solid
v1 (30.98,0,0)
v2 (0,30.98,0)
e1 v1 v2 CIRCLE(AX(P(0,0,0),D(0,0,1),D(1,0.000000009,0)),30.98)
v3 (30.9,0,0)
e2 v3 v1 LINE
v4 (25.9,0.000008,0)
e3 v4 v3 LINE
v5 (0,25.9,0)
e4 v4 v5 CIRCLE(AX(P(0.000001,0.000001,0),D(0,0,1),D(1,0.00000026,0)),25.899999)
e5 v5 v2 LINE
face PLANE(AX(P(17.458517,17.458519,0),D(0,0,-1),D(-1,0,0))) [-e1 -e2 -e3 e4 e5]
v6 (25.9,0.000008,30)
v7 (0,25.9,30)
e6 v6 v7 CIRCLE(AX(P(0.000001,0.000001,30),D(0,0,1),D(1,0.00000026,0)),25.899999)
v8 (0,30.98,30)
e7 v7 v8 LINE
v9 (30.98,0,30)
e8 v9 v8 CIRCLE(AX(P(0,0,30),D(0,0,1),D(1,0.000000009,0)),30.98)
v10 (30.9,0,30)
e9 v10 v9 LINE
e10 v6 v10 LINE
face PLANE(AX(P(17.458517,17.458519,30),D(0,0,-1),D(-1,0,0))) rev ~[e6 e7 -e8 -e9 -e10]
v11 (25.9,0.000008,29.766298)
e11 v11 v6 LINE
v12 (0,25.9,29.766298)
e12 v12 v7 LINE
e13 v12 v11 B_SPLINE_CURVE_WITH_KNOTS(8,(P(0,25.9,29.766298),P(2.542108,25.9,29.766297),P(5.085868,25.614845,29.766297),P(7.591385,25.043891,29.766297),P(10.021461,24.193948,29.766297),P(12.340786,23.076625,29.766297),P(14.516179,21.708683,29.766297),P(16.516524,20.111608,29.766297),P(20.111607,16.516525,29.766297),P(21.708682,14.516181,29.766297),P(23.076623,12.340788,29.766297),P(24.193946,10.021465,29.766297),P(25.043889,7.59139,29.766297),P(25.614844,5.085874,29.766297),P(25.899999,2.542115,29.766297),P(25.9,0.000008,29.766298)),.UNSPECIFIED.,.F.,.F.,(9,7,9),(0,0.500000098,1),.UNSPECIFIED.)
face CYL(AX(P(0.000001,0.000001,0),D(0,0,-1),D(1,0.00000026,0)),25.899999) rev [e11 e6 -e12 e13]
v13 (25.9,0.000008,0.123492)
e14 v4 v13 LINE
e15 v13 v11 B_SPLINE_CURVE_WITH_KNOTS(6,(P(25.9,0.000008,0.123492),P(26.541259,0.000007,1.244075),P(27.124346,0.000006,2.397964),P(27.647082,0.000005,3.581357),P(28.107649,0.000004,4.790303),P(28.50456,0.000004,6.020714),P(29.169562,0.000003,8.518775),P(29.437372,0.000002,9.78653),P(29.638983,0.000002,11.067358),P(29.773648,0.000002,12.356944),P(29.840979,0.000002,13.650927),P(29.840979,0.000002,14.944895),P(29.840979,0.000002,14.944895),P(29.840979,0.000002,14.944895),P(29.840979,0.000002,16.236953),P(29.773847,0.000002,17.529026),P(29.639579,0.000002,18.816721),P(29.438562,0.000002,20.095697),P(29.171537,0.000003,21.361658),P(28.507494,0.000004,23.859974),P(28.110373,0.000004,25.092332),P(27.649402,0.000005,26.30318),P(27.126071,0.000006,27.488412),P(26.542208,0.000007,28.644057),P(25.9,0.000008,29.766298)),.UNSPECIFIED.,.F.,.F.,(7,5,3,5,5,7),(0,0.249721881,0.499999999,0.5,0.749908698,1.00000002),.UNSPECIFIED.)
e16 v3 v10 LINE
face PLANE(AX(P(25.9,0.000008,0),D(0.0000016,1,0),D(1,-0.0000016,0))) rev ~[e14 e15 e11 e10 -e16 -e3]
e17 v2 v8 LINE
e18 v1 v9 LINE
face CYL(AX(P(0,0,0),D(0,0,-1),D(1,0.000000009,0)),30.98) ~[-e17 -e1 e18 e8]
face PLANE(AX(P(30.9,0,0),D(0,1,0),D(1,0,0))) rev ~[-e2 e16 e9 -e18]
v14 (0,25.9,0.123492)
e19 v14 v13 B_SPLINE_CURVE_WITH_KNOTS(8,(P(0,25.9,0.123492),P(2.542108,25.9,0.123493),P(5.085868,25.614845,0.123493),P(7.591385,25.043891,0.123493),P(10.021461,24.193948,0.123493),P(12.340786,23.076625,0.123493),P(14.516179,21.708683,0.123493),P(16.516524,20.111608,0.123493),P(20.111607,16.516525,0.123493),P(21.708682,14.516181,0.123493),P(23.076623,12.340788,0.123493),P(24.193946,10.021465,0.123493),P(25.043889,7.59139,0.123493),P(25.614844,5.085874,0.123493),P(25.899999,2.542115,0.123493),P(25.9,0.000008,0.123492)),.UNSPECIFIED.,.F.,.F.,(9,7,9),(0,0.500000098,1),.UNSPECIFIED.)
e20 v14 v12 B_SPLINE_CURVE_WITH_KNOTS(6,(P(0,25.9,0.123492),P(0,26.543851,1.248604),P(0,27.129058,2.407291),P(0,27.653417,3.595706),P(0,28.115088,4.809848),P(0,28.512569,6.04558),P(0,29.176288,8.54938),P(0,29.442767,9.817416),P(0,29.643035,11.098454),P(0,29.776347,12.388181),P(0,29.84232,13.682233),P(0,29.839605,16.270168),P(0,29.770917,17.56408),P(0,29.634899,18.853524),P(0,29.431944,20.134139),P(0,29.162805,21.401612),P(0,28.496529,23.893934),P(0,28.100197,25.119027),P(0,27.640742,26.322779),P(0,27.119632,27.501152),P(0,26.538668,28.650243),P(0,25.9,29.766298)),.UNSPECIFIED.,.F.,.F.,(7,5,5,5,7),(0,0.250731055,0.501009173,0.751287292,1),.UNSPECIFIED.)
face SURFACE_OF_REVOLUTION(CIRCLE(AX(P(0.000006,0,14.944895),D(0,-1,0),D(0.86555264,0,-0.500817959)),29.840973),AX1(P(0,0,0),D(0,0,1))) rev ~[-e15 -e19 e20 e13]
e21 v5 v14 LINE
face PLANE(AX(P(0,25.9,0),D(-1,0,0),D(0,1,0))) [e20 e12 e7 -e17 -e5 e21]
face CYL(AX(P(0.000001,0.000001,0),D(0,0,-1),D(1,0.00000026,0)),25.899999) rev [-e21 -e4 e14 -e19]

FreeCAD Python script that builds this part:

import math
import FreeCAD as App
import Part
import Sketcher

V = App.Vector

doc = App.newDocument("Part")
body = doc.addObject("PartDesign::Body", "Body")

sketch1 = body.newObject("Sketcher::SketchObject", "Sketch")
sketch1.AttachmentSupport = (doc.getObject("XY_Plane"), [""])
sketch1.MapMode = "FlatFace"
sketch1.addGeometry([
    Part.ArcOfCircle(Part.Circle(V(0, 0, 0), V(0, 0, 1), 25.9), math.radians(0), math.radians(90)),
    Part.LineSegment(V(25.9, 0, 0), V(30.9, 0, 0)),
    Part.LineSegment(V(30.9, 0, 0), V(30.98, 0, 0)),
    Part.ArcOfCircle(Part.Circle(V(0, 0, 0), V(0, 0, 1), 30.98), math.radians(0), math.radians(90)),
    Part.LineSegment(V(0, 30.98, 0), V(0, 25.9, 0)),
], False)
sketch1.addConstraint([
    Sketcher.Constraint("Coincident", 0, 1, 1, 1),
    Sketcher.Constraint("Coincident", 1, 2, 2, 1),
    Sketcher.Constraint("Coincident", 2, 2, 3, 1),
    Sketcher.Constraint("Coincident", 3, 2, 4, 1),
    Sketcher.Constraint("Coincident", 4, 2, 0, 2),
    Sketcher.Constraint("Horizontal", 2),
    Sketcher.Constraint("Vertical", 4),
    Sketcher.Constraint("Coincident", 0, 3, -1, 1),
    Sketcher.Constraint("Coincident", 3, 3, -1, 1),
    Sketcher.Constraint("PointOnObject", 1, 2, -1),
    Sketcher.Constraint("PointOnObject", 3, 2, -2),
    Sketcher.Constraint("Radius", 0, 25.899999),
    Sketcher.Constraint("Radius", 3, 30.98),
    Sketcher.Constraint("Distance", 1, 5.0),
    Sketcher.Constraint("DistanceY", 0, 1, 3, 2, 30.979992),
])
pad1 = body.newObject("PartDesign::Pad", "Pad")
pad1.Profile = sketch1
pad1.Length = 30

sketch2 = body.newObject("Sketcher::SketchObject", "Sketch001")
sketch2.AttachmentSupport = (doc.getObject("XY_Plane"), [""])
sketch2.MapMode = "FlatFace"
sketch2.addGeometry([
    Part.LineSegment(V(0, 10, 0), V(0, 0, 0)),
    Part.LineSegment(V(0, 0, 0), V(10, 0, 0)),
    Part.LineSegment(V(10, 0, 0), V(10, 10, 0)),
    Part.LineSegment(V(10, 10, 0), V(0, 10, 0)),
], False)
sketch2.addConstraint([
    Sketcher.Constraint("Coincident", 0, 2, 1, 1),
    Sketcher.Constraint("Coincident", 1, 2, 2, 1),
    Sketcher.Constraint("Coincident", 2, 2, 3, 1),
    Sketcher.Constraint("Coincident", 3, 2, 0, 1),
    Sketcher.Constraint("Vertical", 0),
    Sketcher.Constraint("Horizontal", 1),
    Sketcher.Constraint("Vertical", 2),
    Sketcher.Constraint("Horizontal", 3),
    Sketcher.Constraint("Coincident", 0, 2, -1, 1),
    Sketcher.Constraint("Equal", 3, 0),
    Sketcher.Constraint("DistanceX", 1, 1, 1, 2, 10.0),
])
pocket1 = body.newObject("PartDesign::Pocket", "Pocket")
pocket1.Profile = sketch2
pocket1.Length = 10
pocket1.Reversed = True

sketch3 = body.newObject("Sketcher::SketchObject", "Sketch002")
sketch3.AttachmentSupport = (doc.getObject("XZ_Plane"), [""])
sketch3.MapMode = "FlatFace"
sketch3.addGeometry([
    Part.ArcOfCircle(Part.Circle(V(0, 15, 0), V(0, 0, 1), 30), math.radians(-30), math.radians(30)),
    Part.LineSegment(V(26, 30, 0), V(26, 0, 0)),
], False)
sketch3.addConstraint([
    Sketcher.Constraint("Coincident", 0, 1, 1, 2),
    Sketcher.Constraint("Coincident", 1, 1, 0, 2),
    Sketcher.Constraint("Vertical", 1),
    Sketcher.Constraint("PointOnObject", 0, 1, -1),
    Sketcher.Constraint("Radius", 0, 29.840973),
    Sketcher.Constraint("DistanceY", 1, 2, 1, 1, 29.88979),
    Sketcher.Constraint("DistanceX", -1, 1, 0, 1, 25.828939),
])
groove = body.newObject("PartDesign::Groove", "Groove")
groove.Profile = sketch3
groove.ReferenceAxis = (sketch3, ["V_Axis"])
groove.Angle = 360

doc.recompute()
